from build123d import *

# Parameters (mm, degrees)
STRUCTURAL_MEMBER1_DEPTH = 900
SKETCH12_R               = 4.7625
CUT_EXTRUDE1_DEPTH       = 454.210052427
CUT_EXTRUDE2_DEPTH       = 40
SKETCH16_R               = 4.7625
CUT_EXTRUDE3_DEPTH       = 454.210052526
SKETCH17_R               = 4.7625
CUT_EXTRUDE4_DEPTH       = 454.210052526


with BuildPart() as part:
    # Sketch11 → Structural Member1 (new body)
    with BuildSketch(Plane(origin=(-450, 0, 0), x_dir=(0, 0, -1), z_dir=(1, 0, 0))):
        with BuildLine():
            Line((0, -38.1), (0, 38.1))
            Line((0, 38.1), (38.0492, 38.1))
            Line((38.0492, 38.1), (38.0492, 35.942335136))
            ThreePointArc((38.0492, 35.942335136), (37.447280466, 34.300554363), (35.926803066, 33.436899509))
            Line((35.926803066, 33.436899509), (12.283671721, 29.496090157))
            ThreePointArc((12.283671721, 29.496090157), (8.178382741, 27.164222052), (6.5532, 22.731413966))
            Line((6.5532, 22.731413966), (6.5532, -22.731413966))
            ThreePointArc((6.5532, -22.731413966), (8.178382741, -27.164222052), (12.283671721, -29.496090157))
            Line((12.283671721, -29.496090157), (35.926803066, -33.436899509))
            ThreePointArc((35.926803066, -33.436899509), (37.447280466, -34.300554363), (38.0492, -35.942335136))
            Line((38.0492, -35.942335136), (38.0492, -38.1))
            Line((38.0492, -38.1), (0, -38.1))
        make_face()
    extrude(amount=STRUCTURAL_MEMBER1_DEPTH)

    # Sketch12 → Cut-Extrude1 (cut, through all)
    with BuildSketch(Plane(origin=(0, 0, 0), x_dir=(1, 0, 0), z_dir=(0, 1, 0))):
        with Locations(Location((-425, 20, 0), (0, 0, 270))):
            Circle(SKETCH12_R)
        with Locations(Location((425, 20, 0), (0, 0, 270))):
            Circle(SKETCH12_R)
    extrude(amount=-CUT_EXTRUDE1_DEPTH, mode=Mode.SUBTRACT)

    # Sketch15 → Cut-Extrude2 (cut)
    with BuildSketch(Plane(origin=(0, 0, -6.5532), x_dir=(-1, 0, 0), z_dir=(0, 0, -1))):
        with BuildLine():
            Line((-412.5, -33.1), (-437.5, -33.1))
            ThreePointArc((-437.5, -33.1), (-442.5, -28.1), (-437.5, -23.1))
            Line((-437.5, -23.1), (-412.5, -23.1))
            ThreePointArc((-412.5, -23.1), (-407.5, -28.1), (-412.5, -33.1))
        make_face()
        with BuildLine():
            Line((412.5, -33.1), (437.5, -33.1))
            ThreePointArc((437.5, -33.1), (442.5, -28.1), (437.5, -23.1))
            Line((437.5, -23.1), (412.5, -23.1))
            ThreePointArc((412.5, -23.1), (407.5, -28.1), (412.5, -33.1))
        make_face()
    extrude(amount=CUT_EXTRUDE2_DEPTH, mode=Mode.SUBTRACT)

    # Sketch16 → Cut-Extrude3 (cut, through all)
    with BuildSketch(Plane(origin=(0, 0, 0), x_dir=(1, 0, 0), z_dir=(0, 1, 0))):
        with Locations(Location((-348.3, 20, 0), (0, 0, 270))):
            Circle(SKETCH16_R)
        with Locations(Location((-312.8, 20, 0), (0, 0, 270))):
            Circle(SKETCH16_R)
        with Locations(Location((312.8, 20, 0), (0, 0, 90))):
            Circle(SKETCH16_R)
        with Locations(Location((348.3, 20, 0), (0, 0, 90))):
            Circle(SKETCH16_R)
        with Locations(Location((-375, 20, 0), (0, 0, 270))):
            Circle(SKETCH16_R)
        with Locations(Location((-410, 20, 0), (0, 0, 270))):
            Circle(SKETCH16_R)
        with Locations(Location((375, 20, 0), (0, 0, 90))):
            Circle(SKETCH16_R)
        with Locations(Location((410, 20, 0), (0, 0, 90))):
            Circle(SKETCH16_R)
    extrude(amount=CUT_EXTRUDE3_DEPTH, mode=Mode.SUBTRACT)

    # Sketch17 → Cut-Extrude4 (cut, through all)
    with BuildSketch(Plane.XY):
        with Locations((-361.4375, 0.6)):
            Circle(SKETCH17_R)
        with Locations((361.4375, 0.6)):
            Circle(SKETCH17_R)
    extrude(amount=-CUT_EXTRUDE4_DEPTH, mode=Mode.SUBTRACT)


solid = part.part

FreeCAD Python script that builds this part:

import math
import FreeCAD as App
import Part
import Sketcher

V = App.Vector
Q = App.Units.Quantity

doc = App.newDocument("Part")
body = doc.addObject("PartDesign::Body", "Body")

# Sketch on YZ plane
sketch1 = body.newObject("Sketcher::SketchObject", "Sketch")
sketch1.AttachmentSupport = (doc.getObject("YZ_Plane"), [""])
sketch1.MapMode = "FlatFace"
sketch1.AttachmentOffset = App.Placement(V(0, 0, -450), App.Rotation())
sketch1.addGeometry(Part.LineSegment(V(38.1, 0, 0), V(-38.1, 0, 0)), False)
sketch1.addGeometry(Part.LineSegment(V(-38.1, 0, 0), V(-38.1, -38.0492, 0)), False)
sketch1.addGeometry(Part.LineSegment(V(-38.1, -38.0492, 0), V(-35.942335, -38.0492, 0)), False)
sketch1.addGeometry(Part.ArcOfCircle(Part.Circle(V(-35.942335, -35.5092, 0), V(0, 0, 1), 2.54), math.radians(-90), math.radians(-9.463)), False)
sketch1.addGeometry(Part.LineSegment(V(-33.4369, -35.926803, 0), V(-29.49609, -12.283672, 0)), False)
sketch1.addGeometry(Part.ArcOfCircle(Part.Circle(V(-22.731414, -13.4112, 0), V(0, 0, 1), 6.858), math.radians(90), math.radians(170.537)), False)
sketch1.addGeometry(Part.LineSegment(V(-22.731414, -6.5532, 0), V(22.731414, -6.5532, 0)), False)
sketch1.addGeometry(Part.ArcOfCircle(Part.Circle(V(22.731414, -13.4112, 0), V(0, 0, 1), 6.858), math.radians(9.463), math.radians(90)), False)
sketch1.addGeometry(Part.LineSegment(V(29.49609, -12.283672, 0), V(33.4369, -35.926803, 0)), False)
sketch1.addGeometry(Part.ArcOfCircle(Part.Circle(V(35.942335, -35.5092, 0), V(0, 0, 1), 2.54), math.radians(-170.537), math.radians(-90)), False)
sketch1.addGeometry(Part.LineSegment(V(35.942335, -38.0492, 0), V(38.1, -38.0492, 0)), False)
sketch1.addGeometry(Part.LineSegment(V(38.1, -38.0492, 0), V(38.1, 0, 0)), False)
sketch1.addConstraint(Sketcher.Constraint("Coincident", 0, 2, 1, 1))
sketch1.addConstraint(Sketcher.Constraint("Coincident", 1, 2, 2, 1))
sketch1.addConstraint(Sketcher.Constraint("Coincident", 2, 2, 3, 1))
sketch1.addConstraint(Sketcher.Constraint("Coincident", 3, 2, 4, 1))
sketch1.addConstraint(Sketcher.Constraint("Coincident", 4, 2, 5, 2))
sketch1.addConstraint(Sketcher.Constraint("Coincident", 5, 1, 6, 1))
sketch1.addConstraint(Sketcher.Constraint("Coincident", 6, 2, 7, 2))
sketch1.addConstraint(Sketcher.Constraint("Coincident", 7, 1, 8, 1))
sketch1.addConstraint(Sketcher.Constraint("Coincident", 8, 2, 9, 1))
sketch1.addConstraint(Sketcher.Constraint("Coincident", 9, 2, 10, 1))
sketch1.addConstraint(Sketcher.Constraint("Coincident", 10, 2, 11, 1))
sketch1.addConstraint(Sketcher.Constraint("Coincident", 11, 2, 0, 1))
sketch1.addConstraint(Sketcher.Constraint("Horizontal", 0))
sketch1.addConstraint(Sketcher.Constraint("Vertical", 1))
sketch1.addConstraint(Sketcher.Constraint("Horizontal", 2))
sketch1.addConstraint(Sketcher.Constraint("Horizontal", 6))
sketch1.addConstraint(Sketcher.Constraint("Horizontal", 10))
sketch1.addConstraint(Sketcher.Constraint("Vertical", 11))
sketch1.addConstraint(Sketcher.Constraint("PointOnObject", 0, 2, -1))
sketch1.addConstraint(Sketcher.Constraint("Radius", 3, Q("0.1 in")))
sketch1.addConstraint(Sketcher.Constraint("Radius", 9, Q("0.1 in")))
sketch1.addConstraint(Sketcher.Constraint("DistanceX", 0, 2, 0, 1, Q("3 in")))
sketch1.addConstraint(Sketcher.Constraint("Radius", 5, Q("0.27 in")))
sketch1.addConstraint(Sketcher.Constraint("Radius", 7, Q("0.27 in")))
sketch1.addConstraint(Sketcher.Constraint("DistanceX", 0, 2, -1, 1, Q("1.5 in")))
sketch1.addConstraint(Sketcher.Constraint("DistanceY", 1, 2, 9, 3, Q("0.1 in")))
sketch1.addConstraint(Sketcher.Constraint("DistanceY", 1, 2, 1, 1, Q("1.498 in")))
sketch1.addConstraint(Sketcher.Constraint("DistanceY", 3, 3, 5, 3, Q("0.87 in")))
sketch1.addConstraint(Sketcher.Constraint("DistanceX", 3, 2, -1, 1, 33.4369))
sketch1.addConstraint(Sketcher.Constraint("DistanceX", -1, 1, 8, 2, 33.4369))
sketch1.addConstraint(Sketcher.Constraint("DistanceX", 2, 1, 2, 2, 2.157665))
sketch1.addConstraint(Sketcher.Constraint("DistanceX", 6, 1, 6, 2, 45.462828))
sketch1.addConstraint(Sketcher.Constraint("DistanceX", 10, 1, 10, 2, 2.157665))
sketch1.addConstraint(Sketcher.Constraint("DistanceX", 4, 2, -1, 1, 29.49609))
sketch1.addConstraint(Sketcher.Constraint("DistanceY", 4, 2, -1, 1, 12.283672))
sketch1.addConstraint(Sketcher.Constraint("DistanceX", -1, 1, 7, 1, 29.49609))
sketch1.addConstraint(Sketcher.Constraint("DistanceY", 7, 1, -1, 1, 12.283672))
sketch1.addConstraint(Sketcher.Constraint("DistanceX", 3, 3, 5, 3, 13.210921))
sketch1.addConstraint(Sketcher.Constraint("DistanceX", 7, 3, 9, 3, 13.210921))
sketch1.addConstraint(Sketcher.Constraint("DistanceX", 3, 3, 5, 1, 13.210921))
pad1 = body.newObject("PartDesign::Pad", "Pad")
pad1.Profile = sketch1
pad1.Length = 900

# Sketch on XZ plane
sketch2 = body.newObject("Sketcher::SketchObject", "Sketch001")
sketch2.AttachmentSupport = (doc.getObject("XZ_Plane"), [""])
sketch2.MapMode = "FlatFace"
sketch2.addGeometry(Part.Circle(V(-425, -20, 0), V(0, 0, 1), 4.8), False)
sketch2.addGeometry(Part.Circle(V(425, -20, 0), V(0, 0, 1), 4.8), False)
sketch2.addConstraint(Sketcher.Constraint("Equal", 0, 1))
sketch2.addConstraint(Sketcher.Constraint("Symmetric", 0, 3, 1, 3, -2))
sketch2.addConstraint(Sketcher.Constraint("Diameter", 0, Q("0.375 in")))
sketch2.addConstraint(Sketcher.Constraint("DistanceX", 0, 3, -1, 1, 425.0))
sketch2.addConstraint(Sketcher.Constraint("DistanceY", 0, 3, -1, 1, 20.0))
pocket1 = body.newObject("PartDesign::Pocket", "Pocket")
pocket1.Profile = sketch2
pocket1.Type = "ThroughAll"
pocket1.Reversed = True

# Sketch on XY plane
sketch3 = body.newObject("Sketcher::SketchObject", "Sketch002")
sketch3.AttachmentSupport = (doc.getObject("XY_Plane"), [""])
sketch3.MapMode = "FlatFace"
sketch3.AttachmentOffset = App.Placement(V(0, 0, -0.258 * 25.4), App.Rotation())
sketch3.addGeometry(Part.LineSegment(V(438, -33, 0), V(412, -33, 0)), False)
sketch3.addGeometry(Part.ArcOfCircle(Part.Circle(V(412, -28, 0), V(0, 0, 1), 5), math.radians(90), math.radians(270)), False)
sketch3.addGeometry(Part.LineSegment(V(412, -23, 0), V(438, -23, 0)), False)
sketch3.addGeometry(Part.ArcOfCircle(Part.Circle(V(438, -28, 0), V(0, 0, 1), 5), math.radians(-90), math.radians(90)), False)
sketch3.addGeometry(Part.LineSegment(V(-412, -33, 0), V(-438, -33, 0)), False)
sketch3.addGeometry(Part.ArcOfCircle(Part.Circle(V(-438, -28, 0), V(0, 0, 1), 5), math.radians(90), math.radians(270)), False)
sketch3.addGeometry(Part.LineSegment(V(-438, -23, 0), V(-412, -23, 0)), False)
sketch3.addGeometry(Part.ArcOfCircle(Part.Circle(V(-412, -28, 0), V(0, 0, 1), 5), math.radians(-90), math.radians(90)), False)
sketch3.addConstraint(Sketcher.Constraint("Tangent", 0, 2, 1, 2))
sketch3.addConstraint(Sketcher.Constraint("Tangent", 1, 1, 2, 1))
sketch3.addConstraint(Sketcher.Constraint("Tangent", 2, 2, 3, 2))
sketch3.addConstraint(Sketcher.Constraint("Tangent", 3, 1, 0, 1))
sketch3.addConstraint(Sketcher.Constraint("Tangent", 4, 2, 5, 2))
sketch3.addConstraint(Sketcher.Constraint("Tangent", 5, 1, 6, 1))
sketch3.addConstraint(Sketcher.Constraint("Tangent", 6, 2, 7, 2))
sketch3.addConstraint(Sketcher.Constraint("Tangent", 7, 1, 4, 1))
sketch3.addConstraint(Sketcher.Constraint("Horizontal", 0))
sketch3.addConstraint(Sketcher.Constraint("Horizontal", 2))
sketch3.addConstraint(Sketcher.Constraint("Horizontal", 4))
sketch3.addConstraint(Sketcher.Constraint("Horizontal", 6))
sketch3.addConstraint(Sketcher.Constraint("Equal", 3, 5))
sketch3.addConstraint(Sketcher.Constraint("Symmetric", 3, 3, 5, 3, -2))
sketch3.addConstraint(Sketcher.Constraint("Equal", 2, 4))
sketch3.addConstraint(Sketcher.Constraint("Radius", 1, 5.0))
sketch3.addConstraint(Sketcher.Constraint("DistanceX", 0, 2, 0, 1, 25.0))
sketch3.addConstraint(Sketcher.Constraint("DistanceX", -1, 1, 1, 3, 412.5))
sketch3.addConstraint(Sketcher.Constraint("DistanceY", 1, 3, -1, 1, 28.1))
pocket2 = body.newObject("PartDesign::Pocket", "Pocket001")
pocket2.Profile = sketch3
pocket2.Length = 40

# Sketch on XZ plane
sketch4 = body.newObject("Sketcher::SketchObject", "Sketch003")
sketch4.AttachmentSupport = (doc.getObject("XZ_Plane"), [""])
sketch4.MapMode = "FlatFace"
sketch4.addGeometry(Part.Circle(V(-348.3, -20, 0), V(0, 0, 1), 4.8), False)
sketch4.addGeometry(Part.Circle(V(-312.8, -20, 0), V(0, 0, 1), 4.8), False)
sketch4.addGeometry(Part.Circle(V(312.8, -20, 0), V(0, 0, 1), 4.8), False)
sketch4.addGeometry(Part.Circle(V(348.3, -20, 0), V(0, 0, 1), 4.8), False)
sketch4.addGeometry(Part.Circle(V(-375, -20, 0), V(0, 0, 1), 4.8), False)
sketch4.addGeometry(Part.Circle(V(-410, -20, 0), V(0, 0, 1), 4.8), False)
sketch4.addGeometry(Part.Circle(V(375, -20, 0), V(0, 0, 1), 4.8), False)
sketch4.addGeometry(Part.Circle(V(410, -20, 0), V(0, 0, 1), 4.8), False)
sketch4.addConstraint(Sketcher.Constraint("Equal", 0, 1))
sketch4.addConstraint(Sketcher.Constraint("Equal", 1, 2))
sketch4.addConstraint(Sketcher.Constraint("Equal", 2, 3))
sketch4.addConstraint(Sketcher.Constraint("Equal", 3, 4))
sketch4.addConstraint(Sketcher.Constraint("Equal", 4, 5))
sketch4.addConstraint(Sketcher.Constraint("Equal", 5, 6))
sketch4.addConstraint(Sketcher.Constraint("Equal", 6, 7))
sketch4.addConstraint(Sketcher.Constraint("Symmetric", 1, 3, 2, 3, -2))
sketch4.addConstraint(Sketcher.Constraint("Symmetric", 0, 3, 3, 3, -2))
sketch4.addConstraint(Sketcher.Constraint("Symmetric", 4, 3, 6, 3, -2))
sketch4.addConstraint(Sketcher.Constraint("Symmetric", 5, 3, 7, 3, -2))
sketch4.addConstraint(Sketcher.Constraint("Horizontal", 0, 3, 1, 3))
sketch4.addConstraint(Sketcher.Constraint("Horizontal", 3, 3, 4, 3))
sketch4.addConstraint(Sketcher.Constraint("Horizontal", 4, 3, 5, 3))
sketch4.addConstraint(Sketcher.Constraint("Diameter", 0, Q("0.375 in")))
sketch4.addConstraint(Sketcher.Constraint("DistanceX", 0, 3, -1, 1, 348.3))
sketch4.addConstraint(Sketcher.Constraint("DistanceY", 0, 3, -1, 1, 20.0))
sketch4.addConstraint(Sketcher.Constraint("DistanceX", 1, 3, -1, 1, 312.8))
sketch4.addConstraint(Sketcher.Constraint("DistanceX", 4, 3, -1, 1, 375.0))
sketch4.addConstraint(Sketcher.Constraint("DistanceX", 5, 3, -1, 1, 410.0))
pocket3 = body.newObject("PartDesign::Pocket", "Pocket002")
pocket3.Profile = sketch4
pocket3.Type = "ThroughAll"

# Sketch on XY plane
sketch5 = body.newObject("Sketcher::SketchObject", "Sketch004")
sketch5.AttachmentSupport = (doc.getObject("XY_Plane"), [""])
sketch5.MapMode = "FlatFace"
sketch5.addGeometry(Part.Circle(V(-361.4, 0.6, 0), V(0, 0, 1), 4.8), False)
sketch5.addGeometry(Part.Circle(V(361.4, 0.6, 0), V(0, 0, 1), 4.8), False)
sketch5.addConstraint(Sketcher.Constraint("Equal", 0, 1))
sketch5.addConstraint(Sketcher.Constraint("Symmetric", 0, 3, 1, 3, -2))
sketch5.addConstraint(Sketcher.Constraint("Diameter", 0, Q("0.375 in")))
sketch5.addConstraint(Sketcher.Constraint("DistanceX", 0, 3, -1, 1, 361.4375))
sketch5.addConstraint(Sketcher.Constraint("DistanceY", -1, 1, 0, 3, 0.6))
pocket4 = body.newObject("PartDesign::Pocket", "Pocket003")
pocket4.Profile = sketch5
pocket4.Type = "ThroughAll"

doc.recompute()
